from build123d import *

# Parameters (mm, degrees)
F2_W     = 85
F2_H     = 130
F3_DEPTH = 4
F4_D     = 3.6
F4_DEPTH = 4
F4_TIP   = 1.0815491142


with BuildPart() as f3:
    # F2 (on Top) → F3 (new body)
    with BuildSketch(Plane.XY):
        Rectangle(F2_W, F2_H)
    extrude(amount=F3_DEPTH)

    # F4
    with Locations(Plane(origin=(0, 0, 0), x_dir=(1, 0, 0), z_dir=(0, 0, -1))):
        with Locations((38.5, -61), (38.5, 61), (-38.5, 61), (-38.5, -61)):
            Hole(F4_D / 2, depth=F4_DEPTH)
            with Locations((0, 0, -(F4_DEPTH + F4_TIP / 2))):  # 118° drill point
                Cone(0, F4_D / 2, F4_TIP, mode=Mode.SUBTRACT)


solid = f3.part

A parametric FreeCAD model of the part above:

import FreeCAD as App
import Part
import Sketcher
from FreeCAD import Vector

doc = App.newDocument("Part")
params = doc.addObject("Spreadsheet::Sheet", "Params")
for row, (alias, value) in enumerate([
    ("sketch1_width", "85 mm"),
    ("sketch1_height", "130 mm"),
    ("pad1_length", "4 mm"),
    ("sketch2_diameter", "3.6 mm"),
    ("hole_diameter", "3.6 mm"),
    ("hole_depth", "4 mm"),
], start=1):
    params.set(f"A{row}", alias)
    params.set(f"B{row}", "=" + value)
    params.setAlias(f"B{row}", alias)

body = doc.addObject("PartDesign::Body", "Body")

sketch1 = doc.addObject("Sketcher::SketchObject", "Sketch")
body.addObject(sketch1)
sketch1.AttachmentSupport = (doc.XY_Plane, [""])
sketch1.MapMode = "FlatFace"
sketch1.addGeometry([
    Part.LineSegment(Vector(-42.5, 65, 0), Vector(-42.5, -65, 0)),
    Part.LineSegment(Vector(-42.5, -65, 0), Vector(42.5, -65, 0)),
    Part.LineSegment(Vector(42.5, -65, 0), Vector(42.5, 65, 0)),
    Part.LineSegment(Vector(42.5, 65, 0), Vector(-42.5, 65, 0)),
], False)
sketch1.addConstraint([
    Sketcher.Constraint("Coincident", 0, 2, 1, 1),
    Sketcher.Constraint("Coincident", 1, 2, 2, 1),
    Sketcher.Constraint("Coincident", 2, 2, 3, 1),
    Sketcher.Constraint("Coincident", 3, 2, 0, 1),
    Sketcher.Constraint("Vertical", 0),
    Sketcher.Constraint("Horizontal", 1),
    Sketcher.Constraint("Vertical", 2),
    Sketcher.Constraint("Horizontal", 3),
    Sketcher.Constraint("Symmetric", 0, 2, 2, 2, -1, 1),
    Sketcher.Constraint("DistanceX", 1, 1, 1, 2, 85.0),
    Sketcher.Constraint("DistanceY", 0, 2, 0, 1, 130.0),
])
sketch1.setExpression("Constraints[9]", "Params.sketch1_width")
sketch1.setExpression("Constraints[10]", "Params.sketch1_height")
pad1 = doc.addObject("PartDesign::Pad", "Pad")
body.addObject(pad1)
pad1.Profile = sketch1
pad1.setExpression("Length", "Params.pad1_length")

sketch2 = doc.addObject("Sketcher::SketchObject", "Sketch001")
body.addObject(sketch2)
sketch2.AttachmentSupport = (doc.XY_Plane, [""])
sketch2.MapMode = "FlatFace"
sketch2.addGeometry([
    Part.Circle(Vector(38.5, 61, 0), Vector(0, 0, 1), 1.8),
    Part.Circle(Vector(38.5, -61, 0), Vector(0, 0, 1), 1.8),
    Part.Circle(Vector(-38.5, -61, 0), Vector(0, 0, 1), 1.8),
    Part.Circle(Vector(-38.5, 61, 0), Vector(0, 0, 1), 1.8),
], False)
sketch2.addConstraint([
    Sketcher.Constraint("Equal", 0, 1),
    Sketcher.Constraint("Equal", 1, 2),
    Sketcher.Constraint("Equal", 2, 3),
    Sketcher.Constraint("Symmetric", 0, 3, 2, 3, -1, 1),
    Sketcher.Constraint("Symmetric", 1, 3, 3, 3, -1, 1),
    Sketcher.Constraint("Symmetric", 1, 3, 2, 3, -2),
    Sketcher.Constraint("Diameter", 0, 3.6),
    Sketcher.Constraint("DistanceY", -1, 1, 0, 3, 61.0),
    Sketcher.Constraint("DistanceX", 2, 3, 1, 3, 77.0),
])
sketch2.setExpression("Constraints[6]", "Params.sketch2_diameter")
doc.recompute()
hole = doc.addObject("PartDesign::Hole", "Hole")
body.addObject(hole)
hole.Profile = sketch2
hole.ThreadType = "None"
hole.setExpression("Diameter", "Params.hole_diameter")
hole.DepthType = "Dimension"
hole.setExpression("Depth", "Params.hole_depth")
hole.DrillPoint = "Angled"
hole.DrillPointAngle = 118
hole.Reversed = True

doc.recompute()
